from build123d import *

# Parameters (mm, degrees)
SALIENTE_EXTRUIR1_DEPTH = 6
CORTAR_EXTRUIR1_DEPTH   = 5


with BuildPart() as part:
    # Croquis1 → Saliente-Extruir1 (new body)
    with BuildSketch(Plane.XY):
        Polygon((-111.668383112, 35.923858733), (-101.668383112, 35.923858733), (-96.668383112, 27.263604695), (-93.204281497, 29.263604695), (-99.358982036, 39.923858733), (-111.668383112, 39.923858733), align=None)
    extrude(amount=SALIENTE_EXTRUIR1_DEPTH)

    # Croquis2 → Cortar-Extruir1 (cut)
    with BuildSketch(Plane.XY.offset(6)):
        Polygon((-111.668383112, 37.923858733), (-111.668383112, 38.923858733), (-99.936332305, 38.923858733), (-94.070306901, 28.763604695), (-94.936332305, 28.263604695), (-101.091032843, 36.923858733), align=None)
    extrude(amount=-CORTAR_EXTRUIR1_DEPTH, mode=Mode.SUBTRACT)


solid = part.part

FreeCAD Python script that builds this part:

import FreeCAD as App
import Part
import Sketcher
from FreeCAD import Vector
Q = App.Units.Quantity


def add_polygon(sketch, points):
    """Adds a closed chain of lines whose ends are joined by coincident constraints."""
    first, n = sketch.GeometryCount, len(points)
    for a, b in zip(points, points[1:] + points[:1]):
        sketch.addGeometry(Part.LineSegment(App.Vector(*a, 0), App.Vector(*b, 0)), False)
    for i in range(n):
        sketch.addConstraint(Sketcher.Constraint("Coincident", first + i, 2, first + (i + 1) % n, 1))

doc = App.newDocument("Part")
body = doc.addObject("PartDesign::Body", "Body")

sketch1 = body.newObject("Sketcher::SketchObject", "Sketch")
sketch1.AttachmentSupport = (doc.getObject("XY_Plane"), [""])
sketch1.MapMode = "FlatFace"
add_polygon(sketch1, [(-111.7, 35.9), (-101.7, 35.9), (-96.7, 27.3), (-93.2, 29.3), (-99.4, 39.9), (-111.7, 39.9)])
sketch1.addConstraint([
    Sketcher.Constraint("Horizontal", 0),
    Sketcher.Constraint("Horizontal", 4),
    Sketcher.Constraint("Vertical", 5),
    Sketcher.Constraint("Perpendicular", 1, 2),
    Sketcher.Constraint("Perpendicular", 2, 3),
    Sketcher.Constraint("DistanceX", 0, 1, 0, 2, Q("10 mm")),
    Sketcher.Constraint("DistanceY", 5, 2, 5, 1, Q("4 mm")),
    Sketcher.Constraint("Angle", 1, Q("-60 deg")),
    Sketcher.Constraint("Distance", 1, Q("10 mm")),
    Sketcher.Constraint("Distance", 2, Q("4 mm")),
    Sketcher.Constraint("DistanceY", -1, 1, 0, 2, Q("35.923859 mm")),
    Sketcher.Constraint("DistanceX", 2, 2, -1, 1, Q("93.204281 mm")),
])
pad1 = body.newObject("PartDesign::Pad", "Pad")
pad1.Profile = sketch1
pad1.Length = 6

sketch2 = body.newObject("Sketcher::SketchObject", "Sketch001")
sketch2.AttachmentSupport = (doc.getObject("XY_Plane"), [""])
sketch2.MapMode = "FlatFace"
sketch2.AttachmentOffset = App.Placement(Vector(0, 0, 6), App.Rotation())
add_polygon(sketch2, [(-111.7, 38.9), (-111.7, 37.9), (-101.1, 36.9), (-94.9, 28.3), (-94.1, 28.8), (-99.9, 38.9)])
sketch2.addConstraint([
    Sketcher.Constraint("Vertical", 0),
    Sketcher.Constraint("Horizontal", 5),
    Sketcher.Constraint("Perpendicular", 3, 4),
    Sketcher.Constraint("Equal", 1, 2),
    Sketcher.Constraint("DistanceY", 0, 2, 0, 1, Q("1 mm")),
    Sketcher.Constraint("Angle", 3, Q("30 deg")),
    Sketcher.Constraint("Distance", 3, Q("1 mm")),
    Sketcher.Constraint("DistanceY", 1, 2, 0, 2, Q("1 mm")),
    Sketcher.Constraint("DistanceX", 4, 2, 2, 2, Q("5 mm")),
    Sketcher.Constraint("DistanceX", 5, 2, 5, 1, Q("11.732051 mm")),
    Sketcher.Constraint("DistanceY", -1, 1, 0, 2, Q("37.923859 mm")),
    Sketcher.Constraint("DistanceX", 0, 2, -1, 1, Q("111.668383 mm")),
])
pocket1 = body.newObject("PartDesign::Pocket", "Pocket")
pocket1.Profile = sketch2
pocket1.Length = 5

doc.recompute()
